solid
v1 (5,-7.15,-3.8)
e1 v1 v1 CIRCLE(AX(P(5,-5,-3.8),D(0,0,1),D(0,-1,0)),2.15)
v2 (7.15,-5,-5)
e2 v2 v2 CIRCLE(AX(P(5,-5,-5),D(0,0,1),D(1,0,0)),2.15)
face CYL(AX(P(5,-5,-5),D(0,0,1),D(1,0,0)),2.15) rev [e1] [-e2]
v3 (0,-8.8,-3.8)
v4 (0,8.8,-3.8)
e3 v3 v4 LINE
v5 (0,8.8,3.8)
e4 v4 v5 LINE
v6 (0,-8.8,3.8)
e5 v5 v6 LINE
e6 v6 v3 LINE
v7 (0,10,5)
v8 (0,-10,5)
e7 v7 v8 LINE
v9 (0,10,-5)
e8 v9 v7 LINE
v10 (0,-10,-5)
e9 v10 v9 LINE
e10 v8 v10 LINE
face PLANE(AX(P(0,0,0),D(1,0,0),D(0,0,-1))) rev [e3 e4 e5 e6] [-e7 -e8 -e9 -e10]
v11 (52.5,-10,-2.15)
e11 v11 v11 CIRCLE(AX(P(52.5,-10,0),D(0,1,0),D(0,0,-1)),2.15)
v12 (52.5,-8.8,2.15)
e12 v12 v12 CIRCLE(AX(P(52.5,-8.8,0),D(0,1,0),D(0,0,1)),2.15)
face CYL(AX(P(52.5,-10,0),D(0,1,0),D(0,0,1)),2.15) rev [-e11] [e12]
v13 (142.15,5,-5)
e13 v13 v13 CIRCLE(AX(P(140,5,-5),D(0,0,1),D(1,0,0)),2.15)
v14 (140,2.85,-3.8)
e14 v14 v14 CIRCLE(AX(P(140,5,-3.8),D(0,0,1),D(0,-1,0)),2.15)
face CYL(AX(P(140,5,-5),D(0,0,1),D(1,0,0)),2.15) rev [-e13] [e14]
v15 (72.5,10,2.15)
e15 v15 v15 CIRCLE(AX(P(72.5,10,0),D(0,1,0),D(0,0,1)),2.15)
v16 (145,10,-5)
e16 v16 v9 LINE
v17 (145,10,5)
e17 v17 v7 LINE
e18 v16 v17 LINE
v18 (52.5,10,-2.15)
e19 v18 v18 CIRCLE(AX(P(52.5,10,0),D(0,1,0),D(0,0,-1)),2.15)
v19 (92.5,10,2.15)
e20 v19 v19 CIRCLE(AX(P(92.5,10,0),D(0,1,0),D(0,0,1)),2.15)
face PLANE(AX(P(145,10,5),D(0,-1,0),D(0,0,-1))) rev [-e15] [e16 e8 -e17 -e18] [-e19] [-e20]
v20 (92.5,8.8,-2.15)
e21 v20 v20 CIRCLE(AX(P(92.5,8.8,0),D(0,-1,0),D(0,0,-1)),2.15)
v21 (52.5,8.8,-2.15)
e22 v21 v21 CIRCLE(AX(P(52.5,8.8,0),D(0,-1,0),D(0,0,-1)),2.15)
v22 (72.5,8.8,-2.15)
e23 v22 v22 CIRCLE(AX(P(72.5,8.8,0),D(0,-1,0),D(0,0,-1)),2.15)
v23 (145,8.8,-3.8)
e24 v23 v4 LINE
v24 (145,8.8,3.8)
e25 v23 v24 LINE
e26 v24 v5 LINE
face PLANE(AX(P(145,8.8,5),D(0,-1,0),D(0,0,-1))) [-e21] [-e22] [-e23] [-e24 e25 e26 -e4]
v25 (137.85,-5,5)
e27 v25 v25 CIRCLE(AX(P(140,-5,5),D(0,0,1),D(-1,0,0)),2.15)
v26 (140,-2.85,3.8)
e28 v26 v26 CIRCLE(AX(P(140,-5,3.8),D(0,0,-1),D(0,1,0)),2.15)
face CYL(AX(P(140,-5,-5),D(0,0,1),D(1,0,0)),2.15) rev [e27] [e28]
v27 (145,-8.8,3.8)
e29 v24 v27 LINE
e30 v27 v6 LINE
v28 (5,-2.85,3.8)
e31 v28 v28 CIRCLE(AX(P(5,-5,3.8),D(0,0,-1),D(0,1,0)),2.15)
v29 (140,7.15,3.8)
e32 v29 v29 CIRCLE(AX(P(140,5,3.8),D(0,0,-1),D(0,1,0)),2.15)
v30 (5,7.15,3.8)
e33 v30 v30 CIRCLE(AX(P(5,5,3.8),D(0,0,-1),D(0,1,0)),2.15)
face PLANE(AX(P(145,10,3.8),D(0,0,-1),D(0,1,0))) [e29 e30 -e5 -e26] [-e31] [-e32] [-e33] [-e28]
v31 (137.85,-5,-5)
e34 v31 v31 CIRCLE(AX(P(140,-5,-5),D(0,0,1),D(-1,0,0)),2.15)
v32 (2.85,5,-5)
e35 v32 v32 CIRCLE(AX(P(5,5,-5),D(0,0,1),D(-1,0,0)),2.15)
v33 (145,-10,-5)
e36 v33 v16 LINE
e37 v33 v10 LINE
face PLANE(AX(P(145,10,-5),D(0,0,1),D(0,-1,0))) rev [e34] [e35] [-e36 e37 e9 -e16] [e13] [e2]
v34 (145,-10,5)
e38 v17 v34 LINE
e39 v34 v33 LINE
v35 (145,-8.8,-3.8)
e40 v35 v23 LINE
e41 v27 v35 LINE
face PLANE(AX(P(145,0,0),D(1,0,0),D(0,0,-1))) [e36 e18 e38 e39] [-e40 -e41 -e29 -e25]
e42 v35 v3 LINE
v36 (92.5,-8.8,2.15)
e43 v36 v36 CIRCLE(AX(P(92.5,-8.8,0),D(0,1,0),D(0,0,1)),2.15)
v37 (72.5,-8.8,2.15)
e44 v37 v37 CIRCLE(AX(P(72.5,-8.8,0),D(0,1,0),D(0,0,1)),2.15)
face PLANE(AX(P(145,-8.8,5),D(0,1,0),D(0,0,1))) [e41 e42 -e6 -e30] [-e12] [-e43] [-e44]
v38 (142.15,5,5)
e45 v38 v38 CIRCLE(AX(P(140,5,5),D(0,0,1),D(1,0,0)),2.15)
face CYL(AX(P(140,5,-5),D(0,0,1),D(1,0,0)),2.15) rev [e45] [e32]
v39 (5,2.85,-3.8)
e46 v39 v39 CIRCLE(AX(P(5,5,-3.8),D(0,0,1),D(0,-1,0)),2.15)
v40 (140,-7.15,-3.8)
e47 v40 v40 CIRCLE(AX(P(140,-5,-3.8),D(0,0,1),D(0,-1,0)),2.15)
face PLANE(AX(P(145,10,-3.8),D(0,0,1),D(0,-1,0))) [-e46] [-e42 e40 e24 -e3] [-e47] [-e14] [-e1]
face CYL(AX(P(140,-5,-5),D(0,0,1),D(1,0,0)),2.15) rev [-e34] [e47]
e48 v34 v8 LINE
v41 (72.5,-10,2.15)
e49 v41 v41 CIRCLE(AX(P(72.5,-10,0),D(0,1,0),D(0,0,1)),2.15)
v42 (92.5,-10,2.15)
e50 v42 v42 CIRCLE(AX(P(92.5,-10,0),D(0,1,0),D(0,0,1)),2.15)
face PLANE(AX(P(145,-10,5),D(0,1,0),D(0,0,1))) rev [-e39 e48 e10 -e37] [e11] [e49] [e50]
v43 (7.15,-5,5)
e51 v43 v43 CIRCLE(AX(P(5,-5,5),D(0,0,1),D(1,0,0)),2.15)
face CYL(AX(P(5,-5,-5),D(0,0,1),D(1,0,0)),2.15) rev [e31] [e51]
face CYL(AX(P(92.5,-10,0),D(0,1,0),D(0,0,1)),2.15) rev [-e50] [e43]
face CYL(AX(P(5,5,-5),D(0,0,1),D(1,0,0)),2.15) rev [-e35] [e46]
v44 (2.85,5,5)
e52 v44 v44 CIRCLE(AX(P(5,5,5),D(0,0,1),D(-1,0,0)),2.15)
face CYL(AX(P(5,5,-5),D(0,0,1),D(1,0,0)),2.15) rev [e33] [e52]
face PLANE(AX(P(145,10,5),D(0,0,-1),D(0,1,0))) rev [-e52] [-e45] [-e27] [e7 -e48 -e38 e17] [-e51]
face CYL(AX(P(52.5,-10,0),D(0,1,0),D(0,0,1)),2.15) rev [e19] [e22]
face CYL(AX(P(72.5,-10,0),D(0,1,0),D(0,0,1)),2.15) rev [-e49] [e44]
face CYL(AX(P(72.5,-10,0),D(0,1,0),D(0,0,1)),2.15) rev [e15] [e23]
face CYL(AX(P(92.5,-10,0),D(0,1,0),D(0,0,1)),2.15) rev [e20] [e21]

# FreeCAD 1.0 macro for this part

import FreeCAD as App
import Part
import Sketcher

V = App.Vector
Q = App.Units.Quantity

doc = App.newDocument("Part")
body = doc.addObject("PartDesign::Body", "Body")

# Sketch on YZ plane
sketch1 = doc.addObject("Sketcher::SketchObject", "Sketch")
body.addObject(sketch1)
sketch1.AttachmentSupport = (doc.YZ_Plane, [""])
sketch1.MapMode = "FlatFace"
sketch1.addGeometry(Part.LineSegment(V(10, 5, 0), V(-10, 5, 0)), False)
sketch1.addGeometry(Part.LineSegment(V(-10, 5, 0), V(-10, -5, 0)), False)
sketch1.addGeometry(Part.LineSegment(V(-10, -5, 0), V(10, -5, 0)), False)
sketch1.addGeometry(Part.LineSegment(V(10, -5, 0), V(10, 5, 0)), False)
sketch1.addGeometry(Part.LineSegment(V(-8.8, -3.8, 0), V(-8.8, 3.8, 0)), False)
sketch1.addGeometry(Part.LineSegment(V(-8.8, 3.8, 0), V(8.8, 3.8, 0)), False)
sketch1.addGeometry(Part.LineSegment(V(8.8, 3.8, 0), V(8.8, -3.8, 0)), False)
sketch1.addGeometry(Part.LineSegment(V(8.8, -3.8, 0), V(-8.8, -3.8, 0)), False)
sketch1.addConstraint(Sketcher.Constraint("Coincident", 0, 2, 1, 1))
sketch1.addConstraint(Sketcher.Constraint("Coincident", 1, 2, 2, 1))
sketch1.addConstraint(Sketcher.Constraint("Coincident", 2, 2, 3, 1))
sketch1.addConstraint(Sketcher.Constraint("Coincident", 3, 2, 0, 1))
sketch1.addConstraint(Sketcher.Constraint("Coincident", 4, 2, 5, 1))
sketch1.addConstraint(Sketcher.Constraint("Coincident", 5, 2, 6, 1))
sketch1.addConstraint(Sketcher.Constraint("Coincident", 6, 2, 7, 1))
sketch1.addConstraint(Sketcher.Constraint("Coincident", 7, 2, 4, 1))
sketch1.addConstraint(Sketcher.Constraint("Horizontal", 0))
sketch1.addConstraint(Sketcher.Constraint("Vertical", 1))
sketch1.addConstraint(Sketcher.Constraint("Horizontal", 2))
sketch1.addConstraint(Sketcher.Constraint("Vertical", 3))
sketch1.addConstraint(Sketcher.Constraint("Vertical", 4))
sketch1.addConstraint(Sketcher.Constraint("Horizontal", 5))
sketch1.addConstraint(Sketcher.Constraint("Vertical", 6))
sketch1.addConstraint(Sketcher.Constraint("Horizontal", 7))
sketch1.addConstraint(Sketcher.Constraint("Symmetric", 0, 2, 2, 2, -1, 1))
sketch1.addConstraint(Sketcher.Constraint("Symmetric", 4, 2, 6, 2, -1, 1))
sketch1.addConstraint(Sketcher.Constraint("DistanceX", 0, 2, 0, 1, Q("20 mm")))
sketch1.addConstraint(Sketcher.Constraint("DistanceY", 1, 2, 1, 1, Q("10 mm")))
sketch1.addConstraint(Sketcher.Constraint("DistanceX", 5, 1, 5, 2, Q("17.6 mm")))
sketch1.addConstraint(Sketcher.Constraint("DistanceY", 4, 1, 4, 2, Q("7.6 mm")))
pad1 = doc.addObject("PartDesign::Pad", "Pad")
body.addObject(pad1)
pad1.Profile = sketch1
pad1.Length = 145

# Sketch on XZ plane
sketch2 = doc.addObject("Sketcher::SketchObject", "Sketch001")
body.addObject(sketch2)
sketch2.AttachmentSupport = (doc.XZ_Plane, [""])
sketch2.MapMode = "FlatFace"
sketch2.AttachmentOffset = App.Placement(V(0, 0, -10), App.Rotation())
sketch2.addGeometry(Part.Circle(V(92.5, 0, 0), V(0, 0, 1), 2.15), False)
sketch2.addGeometry(Part.Circle(V(52.5, 0, 0), V(0, 0, 1), 2.15), False)
sketch2.addGeometry(Part.Circle(V(72.5, 0, 0), V(0, 0, 1), 2.15), False)
sketch2.addConstraint(Sketcher.Constraint("Equal", 0, 1))
sketch2.addConstraint(Sketcher.Constraint("Equal", 1, 2))
sketch2.addConstraint(Sketcher.Constraint("PointOnObject", 0, 3, -1))
sketch2.addConstraint(Sketcher.Constraint("PointOnObject", 1, 3, -1))
sketch2.addConstraint(Sketcher.Constraint("PointOnObject", 2, 3, -1))
sketch2.addConstraint(Sketcher.Constraint("Diameter", 0, Q("4.3 mm")))
sketch2.addConstraint(Sketcher.Constraint("DistanceX", 1, 3, 0, 3, Q("40 mm")))
sketch2.addConstraint(Sketcher.Constraint("DistanceX", 2, 3, 0, 3, Q("20 mm")))
sketch2.addConstraint(Sketcher.Constraint("DistanceX", -1, 1, 0, 3, Q("92.5 mm")))
pocket1 = doc.addObject("PartDesign::Pocket", "Pocket")
body.addObject(pocket1)
pocket1.Profile = sketch2
pocket1.Type = "ThroughAll"
pocket1.Reversed = True

# Sketch on XY plane
sketch3 = doc.addObject("Sketcher::SketchObject", "Sketch002")
body.addObject(sketch3)
sketch3.AttachmentSupport = (doc.XY_Plane, [""])
sketch3.MapMode = "FlatFace"
sketch3.AttachmentOffset = App.Placement(V(0, 0, 5), App.Rotation())
sketch3.addGeometry(Part.Circle(V(140, 5, 0), V(0, 0, 1), 2.15), False)
sketch3.addGeometry(Part.Circle(V(140, -5, 0), V(0, 0, 1), 2.15), False)
sketch3.addGeometry(Part.Circle(V(5, 5, 0), V(0, 0, 1), 2.15), False)
sketch3.addGeometry(Part.Circle(V(5, -5, 0), V(0, 0, 1), 2.15), False)
sketch3.addConstraint(Sketcher.Constraint("Equal", 0, 1))
sketch3.addConstraint(Sketcher.Constraint("Equal", 1, 2))
sketch3.addConstraint(Sketcher.Constraint("Equal", 2, 3))
sketch3.addConstraint(Sketcher.Constraint("Symmetric", 0, 3, 1, 3, -1))
sketch3.addConstraint(Sketcher.Constraint("Symmetric", 2, 3, 3, 3, -1))
sketch3.addConstraint(Sketcher.Constraint("Horizontal", 0, 3, 2, 3))
sketch3.addConstraint(Sketcher.Constraint("Diameter", 0, Q("4.3 mm")))
sketch3.addConstraint(Sketcher.Constraint("DistanceX", -1, 1, 0, 3, Q("140 mm")))
sketch3.addConstraint(Sketcher.Constraint("DistanceY", -1, 1, 0, 3, Q("5 mm")))
sketch3.addConstraint(Sketcher.Constraint("DistanceX", -1, 1, 2, 3, Q("5 mm")))
pocket2 = doc.addObject("PartDesign::Pocket", "Pocket001")
body.addObject(pocket2)
pocket2.Profile = sketch3
pocket2.Type = "ThroughAll"

doc.recompute()
